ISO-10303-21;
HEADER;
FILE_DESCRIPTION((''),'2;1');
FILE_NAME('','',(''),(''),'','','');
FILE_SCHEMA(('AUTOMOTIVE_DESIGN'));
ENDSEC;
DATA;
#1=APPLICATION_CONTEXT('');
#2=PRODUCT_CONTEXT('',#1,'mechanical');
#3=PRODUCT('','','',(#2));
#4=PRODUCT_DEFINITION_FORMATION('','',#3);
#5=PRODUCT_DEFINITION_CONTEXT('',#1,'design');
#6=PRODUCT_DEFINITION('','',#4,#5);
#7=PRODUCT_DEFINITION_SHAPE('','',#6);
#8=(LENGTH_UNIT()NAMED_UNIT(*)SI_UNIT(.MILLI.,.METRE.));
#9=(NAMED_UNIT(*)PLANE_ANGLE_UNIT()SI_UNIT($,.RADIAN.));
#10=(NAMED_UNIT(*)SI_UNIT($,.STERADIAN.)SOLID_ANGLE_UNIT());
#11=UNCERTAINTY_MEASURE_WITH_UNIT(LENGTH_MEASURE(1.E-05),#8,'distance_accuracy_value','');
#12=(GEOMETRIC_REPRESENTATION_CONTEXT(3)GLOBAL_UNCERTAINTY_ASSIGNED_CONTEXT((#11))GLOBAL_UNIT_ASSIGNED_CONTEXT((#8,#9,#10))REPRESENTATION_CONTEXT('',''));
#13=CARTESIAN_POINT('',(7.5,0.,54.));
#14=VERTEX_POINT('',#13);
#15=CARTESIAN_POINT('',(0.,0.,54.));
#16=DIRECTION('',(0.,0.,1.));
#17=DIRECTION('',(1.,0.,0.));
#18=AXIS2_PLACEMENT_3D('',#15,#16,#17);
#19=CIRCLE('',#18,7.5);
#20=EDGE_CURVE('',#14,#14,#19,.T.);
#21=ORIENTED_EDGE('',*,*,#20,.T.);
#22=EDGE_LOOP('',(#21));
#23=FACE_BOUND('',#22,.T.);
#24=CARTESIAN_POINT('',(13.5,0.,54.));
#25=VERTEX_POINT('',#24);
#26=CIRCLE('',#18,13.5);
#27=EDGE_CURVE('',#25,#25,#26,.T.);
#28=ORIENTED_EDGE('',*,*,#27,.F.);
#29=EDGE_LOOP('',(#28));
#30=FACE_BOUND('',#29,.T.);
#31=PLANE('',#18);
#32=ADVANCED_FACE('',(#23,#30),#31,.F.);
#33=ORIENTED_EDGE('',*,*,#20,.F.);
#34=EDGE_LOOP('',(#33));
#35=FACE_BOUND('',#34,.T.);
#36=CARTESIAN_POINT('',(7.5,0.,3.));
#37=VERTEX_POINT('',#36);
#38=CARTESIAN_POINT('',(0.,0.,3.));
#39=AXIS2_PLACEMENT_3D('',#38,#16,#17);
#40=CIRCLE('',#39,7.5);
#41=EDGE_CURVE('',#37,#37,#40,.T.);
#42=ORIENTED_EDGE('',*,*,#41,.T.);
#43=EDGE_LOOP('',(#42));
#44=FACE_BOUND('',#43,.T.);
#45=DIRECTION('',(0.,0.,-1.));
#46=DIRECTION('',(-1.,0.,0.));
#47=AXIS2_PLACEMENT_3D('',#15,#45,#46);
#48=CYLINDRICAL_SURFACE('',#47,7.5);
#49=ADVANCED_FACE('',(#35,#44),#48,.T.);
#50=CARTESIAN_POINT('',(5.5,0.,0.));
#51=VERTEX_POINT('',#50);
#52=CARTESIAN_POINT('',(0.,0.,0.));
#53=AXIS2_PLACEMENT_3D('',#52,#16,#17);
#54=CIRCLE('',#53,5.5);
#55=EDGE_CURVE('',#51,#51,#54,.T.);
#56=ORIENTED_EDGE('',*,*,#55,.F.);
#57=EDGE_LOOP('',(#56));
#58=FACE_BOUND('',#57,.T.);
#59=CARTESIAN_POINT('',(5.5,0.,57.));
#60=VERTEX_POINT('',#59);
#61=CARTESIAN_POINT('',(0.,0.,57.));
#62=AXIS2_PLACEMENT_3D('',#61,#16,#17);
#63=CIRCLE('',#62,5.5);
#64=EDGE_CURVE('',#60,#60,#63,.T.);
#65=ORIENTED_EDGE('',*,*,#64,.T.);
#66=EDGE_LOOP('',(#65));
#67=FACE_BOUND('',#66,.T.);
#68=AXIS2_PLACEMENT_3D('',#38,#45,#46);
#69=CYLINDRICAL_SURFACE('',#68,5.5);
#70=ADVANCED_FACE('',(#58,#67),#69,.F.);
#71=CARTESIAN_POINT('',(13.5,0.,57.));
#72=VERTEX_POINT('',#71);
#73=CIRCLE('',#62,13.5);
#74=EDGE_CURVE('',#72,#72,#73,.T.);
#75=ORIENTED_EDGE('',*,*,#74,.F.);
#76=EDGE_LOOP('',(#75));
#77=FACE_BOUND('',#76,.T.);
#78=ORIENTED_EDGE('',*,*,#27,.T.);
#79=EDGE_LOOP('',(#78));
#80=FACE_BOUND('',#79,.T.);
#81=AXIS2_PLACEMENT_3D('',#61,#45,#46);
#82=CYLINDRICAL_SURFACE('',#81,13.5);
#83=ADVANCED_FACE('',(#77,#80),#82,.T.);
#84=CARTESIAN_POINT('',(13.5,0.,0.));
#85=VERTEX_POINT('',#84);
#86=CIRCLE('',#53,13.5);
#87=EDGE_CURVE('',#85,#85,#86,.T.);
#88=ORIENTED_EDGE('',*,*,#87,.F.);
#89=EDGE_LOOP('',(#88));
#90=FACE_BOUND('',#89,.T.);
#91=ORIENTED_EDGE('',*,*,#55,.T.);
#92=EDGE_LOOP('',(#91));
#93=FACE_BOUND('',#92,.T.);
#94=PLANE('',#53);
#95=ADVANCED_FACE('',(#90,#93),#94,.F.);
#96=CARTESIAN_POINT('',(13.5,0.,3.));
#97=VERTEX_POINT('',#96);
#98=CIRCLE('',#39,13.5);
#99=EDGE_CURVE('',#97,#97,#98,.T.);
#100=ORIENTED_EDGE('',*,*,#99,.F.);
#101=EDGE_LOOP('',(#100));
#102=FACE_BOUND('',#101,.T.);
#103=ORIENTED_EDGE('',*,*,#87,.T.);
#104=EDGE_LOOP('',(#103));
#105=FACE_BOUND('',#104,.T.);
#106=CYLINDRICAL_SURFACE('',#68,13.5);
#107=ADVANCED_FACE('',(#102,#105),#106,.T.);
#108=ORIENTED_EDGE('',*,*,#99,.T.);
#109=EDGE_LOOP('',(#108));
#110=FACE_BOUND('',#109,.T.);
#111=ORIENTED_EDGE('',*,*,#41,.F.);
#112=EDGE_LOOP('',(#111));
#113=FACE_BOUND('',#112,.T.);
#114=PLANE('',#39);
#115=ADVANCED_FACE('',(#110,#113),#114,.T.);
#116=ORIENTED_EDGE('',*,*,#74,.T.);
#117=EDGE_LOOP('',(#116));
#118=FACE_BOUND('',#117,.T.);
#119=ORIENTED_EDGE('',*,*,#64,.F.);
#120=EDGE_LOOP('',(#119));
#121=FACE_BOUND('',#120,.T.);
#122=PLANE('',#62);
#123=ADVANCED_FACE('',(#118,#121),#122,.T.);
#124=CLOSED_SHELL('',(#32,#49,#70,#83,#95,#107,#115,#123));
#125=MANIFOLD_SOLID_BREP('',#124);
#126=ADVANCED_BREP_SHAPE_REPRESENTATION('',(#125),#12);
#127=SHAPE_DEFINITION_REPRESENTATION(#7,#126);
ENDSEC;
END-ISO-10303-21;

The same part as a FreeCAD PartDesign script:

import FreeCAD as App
import Part
import Sketcher
Q = App.Units.Quantity

doc = App.newDocument("Part")
body = doc.addObject("PartDesign::Body", "Body")

# Sketch on XY plane
sketch1 = body.newObject("Sketcher::SketchObject", "Sketch")
sketch1.AttachmentSupport = (doc.getObject("XY_Plane"), [""])
sketch1.MapMode = "FlatFace"
sketch1.addGeometry(Part.Circle(App.Vector(0, 0, 0), App.Vector(0, 0, 1), 13.5), False)
sketch1.addGeometry(Part.Circle(App.Vector(0, 0, 0), App.Vector(0, 0, 1), 5.5), False)
sketch1.addConstraint(Sketcher.Constraint("Coincident", 0, 3, -1, 1))
sketch1.addConstraint(Sketcher.Constraint("Coincident", 1, 3, -1, 1))
sketch1.addConstraint(Sketcher.Constraint("Diameter", 0, Q("27 mm")))
sketch1.addConstraint(Sketcher.Constraint("Diameter", 1, Q("11 mm")))
pad1 = body.newObject("PartDesign::Pad", "Pad")
pad1.Profile = sketch1
pad1.Length = 3

# Sketch on XY plane
sketch2 = body.newObject("Sketcher::SketchObject", "Sketch001")
sketch2.AttachmentSupport = (doc.getObject("XY_Plane"), [""])
sketch2.MapMode = "FlatFace"
sketch2.AttachmentOffset = App.Placement(App.Vector(0, 0, 3), App.Rotation())
sketch2.addGeometry(Part.Circle(App.Vector(0, 0, 0), App.Vector(0, 0, 1), 7.5), False)
sketch2.addGeometry(Part.Circle(App.Vector(0, 0, 0), App.Vector(0, 0, 1), 5.5), False)
sketch2.addConstraint(Sketcher.Constraint("Coincident", 0, 3, -1, 1))
sketch2.addConstraint(Sketcher.Constraint("Coincident", 1, 3, -1, 1))
sketch2.addConstraint(Sketcher.Constraint("Diameter", 0, Q("15 mm")))
sketch2.addConstraint(Sketcher.Constraint("Diameter", 1, Q("11 mm")))
pad2 = body.newObject("PartDesign::Pad", "Pad001")
pad2.Profile = sketch2
pad2.Length = 51

# Sketch on XY plane
sketch3 = body.newObject("Sketcher::SketchObject", "Sketch002")
sketch3.AttachmentSupport = (doc.getObject("XY_Plane"), [""])
sketch3.MapMode = "FlatFace"
sketch3.AttachmentOffset = App.Placement(App.Vector(0, 0, 54), App.Rotation())
sketch3.addGeometry(Part.Circle(App.Vector(0, 0, 0), App.Vector(0, 0, 1), 13.5), False)
sketch3.addGeometry(Part.Circle(App.Vector(0, 0, 0), App.Vector(0, 0, 1), 5.5), False)
sketch3.addConstraint(Sketcher.Constraint("Coincident", 0, 3, -1, 1))
sketch3.addConstraint(Sketcher.Constraint("Coincident", 1, 3, -1, 1))
sketch3.addConstraint(Sketcher.Constraint("Diameter", 0, Q("27 mm")))
sketch3.addConstraint(Sketcher.Constraint("Diameter", 1, Q("11 mm")))
pad3 = body.newObject("PartDesign::Pad", "Pad002")
pad3.Profile = sketch3
pad3.Length = 3

doc.recompute()
